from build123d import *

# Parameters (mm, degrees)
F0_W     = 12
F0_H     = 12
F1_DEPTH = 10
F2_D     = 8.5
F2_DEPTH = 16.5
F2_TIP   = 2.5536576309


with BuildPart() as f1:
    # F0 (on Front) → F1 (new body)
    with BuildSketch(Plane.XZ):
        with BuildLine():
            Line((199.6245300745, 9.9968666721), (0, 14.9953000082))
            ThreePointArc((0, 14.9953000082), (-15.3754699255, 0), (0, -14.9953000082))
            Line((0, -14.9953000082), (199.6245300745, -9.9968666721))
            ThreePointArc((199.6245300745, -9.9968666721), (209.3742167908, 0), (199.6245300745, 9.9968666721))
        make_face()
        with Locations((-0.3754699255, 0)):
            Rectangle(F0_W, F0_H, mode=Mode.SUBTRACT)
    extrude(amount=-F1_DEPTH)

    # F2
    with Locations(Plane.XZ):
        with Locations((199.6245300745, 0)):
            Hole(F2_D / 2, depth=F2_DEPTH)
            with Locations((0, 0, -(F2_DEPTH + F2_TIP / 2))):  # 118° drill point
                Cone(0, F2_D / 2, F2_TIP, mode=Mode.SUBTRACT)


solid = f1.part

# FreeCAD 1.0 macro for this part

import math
import FreeCAD as App
import Part
import Sketcher
from FreeCAD import Vector
Q = App.Units.Quantity

doc = App.newDocument("Part")
body = doc.addObject("PartDesign::Body", "Body")

sketch1 = body.newObject("Sketcher::SketchObject", "Sketch")
sketch1.AttachmentSupport = (doc.getObject("XZ_Plane"), [""])
sketch1.MapMode = "FlatFace"
sketch1.addGeometry([
    Part.LineSegment(Vector(200, 10, 0), Vector(0, 15, 0)),
    Part.ArcOfCircle(Part.Circle(Vector(0, 0, 0), Vector(0, 0, 1), 15), math.radians(89), math.radians(271)),
    Part.LineSegment(Vector(0, -15, 0), Vector(200, -10, 0)),
    Part.ArcOfCircle(Part.Circle(Vector(199, 0, 0), Vector(0, 0, 1), 10), math.radians(-89), math.radians(89)),
    Part.LineSegment(Vector(6, -6, 0), Vector(-6, -6, 0)),
    Part.LineSegment(Vector(-6, -6, 0), Vector(-6, 6, 0)),
    Part.LineSegment(Vector(-6, 6, 0), Vector(6, 6, 0)),
    Part.LineSegment(Vector(6, 6, 0), Vector(6, -6, 0)),
], False)
sketch1.addConstraint([
    Sketcher.Constraint("Tangent", 0, 2, 1, 1),
    Sketcher.Constraint("Tangent", 1, 2, 2, 1),
    Sketcher.Constraint("Tangent", 2, 2, 3, 1),
    Sketcher.Constraint("Tangent", 3, 2, 0, 1),
    Sketcher.Constraint("Coincident", 4, 2, 5, 1),
    Sketcher.Constraint("Coincident", 5, 2, 6, 1),
    Sketcher.Constraint("Coincident", 6, 2, 7, 1),
    Sketcher.Constraint("Coincident", 7, 2, 4, 1),
    Sketcher.Constraint("Horizontal", 4),
    Sketcher.Constraint("Vertical", 5),
    Sketcher.Constraint("Horizontal", 6),
    Sketcher.Constraint("Vertical", 7),
    Sketcher.Constraint("Symmetric", 0, 2, 1, 2, -1, 1),
    Sketcher.Constraint("PointOnObject", 3, 3, -1),
    Sketcher.Constraint("Equal", 6, 5),
    Sketcher.Constraint("Radius", 1, Q("15 mm")),
    Sketcher.Constraint("Radius", 3, Q("10 mm")),
    Sketcher.Constraint("DistanceX", 4, 2, 4, 1, Q("12 mm")),
    Sketcher.Constraint("DistanceY", 4, 2, -1, 1, Q("6 mm")),
    Sketcher.Constraint("DistanceX", 1, 3, 2, 2, Q("200 mm")),
    Sketcher.Constraint("DistanceX", 4, 2, 1, 3, Q("6 mm")),
])
pad1 = body.newObject("PartDesign::Pad", "Pad")
pad1.Profile = sketch1
pad1.Length = 10
pad1.Reversed = True

sketch2 = body.newObject("Sketcher::SketchObject", "Sketch001")
sketch2.AttachmentSupport = (doc.getObject("XZ_Plane"), [""])
sketch2.MapMode = "FlatFace"
sketch2.addGeometry(Part.Circle(Vector(199.6, 0, 0), Vector(0, 0, 1), 4.2), False)
sketch2.addConstraint([
    Sketcher.Constraint("PointOnObject", 0, 3, -1),
    Sketcher.Constraint("Diameter", 0, Q("8.5 mm")),
    Sketcher.Constraint("DistanceX", -1, 1, 0, 3, Q("199.62453 mm")),
])
doc.recompute()
hole = body.newObject("PartDesign::Hole", "Hole")
hole.Profile = sketch2
hole.ThreadType = "None"
hole.Diameter = 8.5
hole.DepthType = "Dimension"
hole.Depth = 16.5
hole.DrillPoint = "Angled"
hole.DrillPointAngle = 118

doc.recompute()
